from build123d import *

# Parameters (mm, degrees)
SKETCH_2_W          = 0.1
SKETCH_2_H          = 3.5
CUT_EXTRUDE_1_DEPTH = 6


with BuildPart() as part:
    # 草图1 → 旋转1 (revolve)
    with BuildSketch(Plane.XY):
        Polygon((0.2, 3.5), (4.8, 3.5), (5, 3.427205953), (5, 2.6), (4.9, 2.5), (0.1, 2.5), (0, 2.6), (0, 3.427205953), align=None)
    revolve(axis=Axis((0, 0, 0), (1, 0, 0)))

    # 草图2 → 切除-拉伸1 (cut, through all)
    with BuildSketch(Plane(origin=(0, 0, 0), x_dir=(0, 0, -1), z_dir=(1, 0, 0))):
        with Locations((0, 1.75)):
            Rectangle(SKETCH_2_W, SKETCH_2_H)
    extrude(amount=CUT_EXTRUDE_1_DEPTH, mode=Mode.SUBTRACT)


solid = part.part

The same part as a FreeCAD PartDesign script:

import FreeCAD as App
import Part
import Sketcher
from FreeCAD import Vector
Q = App.Units.Quantity

doc = App.newDocument("Part")
params = doc.addObject("Spreadsheet::Sheet", "Params")
for row, (alias, value) in enumerate([
    ("sketch1_width", "4.6 mm"),
    ("sketch1_width2", "4.8 mm"),
    ("revolution_angle", "360 deg"),
    ("sketch2_width", "3.5 mm"),
    ("sketch2_height", "0.1 mm"),
], start=1):
    params.set(f"A{row}", alias)
    params.set(f"B{row}", "=" + value)
    params.setAlias(f"B{row}", alias)

body = doc.addObject("PartDesign::Body", "Body")

sketch1 = body.newObject("Sketcher::SketchObject", "Sketch")
sketch1.AttachmentSupport = (doc.getObject("XY_Plane"), [""])
sketch1.MapMode = "FlatFace"
sketch1.addGeometry(Part.LineSegment(Vector(4.8, 3.5, 0), Vector(0.2, 3.5, 0)), False)
sketch1.addGeometry(Part.LineSegment(Vector(0.2, 3.5, 0), Vector(0, 3.43, 0)), False)
sketch1.addGeometry(Part.LineSegment(Vector(0, 3.43, 0), Vector(0, 2.6, 0)), False)
sketch1.addGeometry(Part.LineSegment(Vector(0, 2.6, 0), Vector(0.1, 2.5, 0)), False)
sketch1.addGeometry(Part.LineSegment(Vector(0.1, 2.5, 0), Vector(4.9, 2.5, 0)), False)
sketch1.addGeometry(Part.LineSegment(Vector(4.9, 2.5, 0), Vector(5, 2.6, 0)), False)
sketch1.addGeometry(Part.LineSegment(Vector(5, 2.6, 0), Vector(5, 3.43, 0)), False)
sketch1.addGeometry(Part.LineSegment(Vector(5, 3.43, 0), Vector(4.8, 3.5, 0)), False)
sketch1.addConstraint(Sketcher.Constraint("Coincident", 0, 2, 1, 1))
sketch1.addConstraint(Sketcher.Constraint("Coincident", 1, 2, 2, 1))
sketch1.addConstraint(Sketcher.Constraint("Coincident", 2, 2, 3, 1))
sketch1.addConstraint(Sketcher.Constraint("Coincident", 3, 2, 4, 1))
sketch1.addConstraint(Sketcher.Constraint("Coincident", 4, 2, 5, 1))
sketch1.addConstraint(Sketcher.Constraint("Coincident", 5, 2, 6, 1))
sketch1.addConstraint(Sketcher.Constraint("Coincident", 6, 2, 7, 1))
sketch1.addConstraint(Sketcher.Constraint("Coincident", 7, 2, 0, 1))
sketch1.addConstraint(Sketcher.Constraint("Horizontal", 0))
sketch1.addConstraint(Sketcher.Constraint("Vertical", 2))
sketch1.addConstraint(Sketcher.Constraint("Horizontal", 4))
sketch1.addConstraint(Sketcher.Constraint("Vertical", 6))
sketch1.addConstraint(Sketcher.Constraint("PointOnObject", 1, 2, -2))
sketch1.addConstraint(Sketcher.Constraint("Perpendicular", 3, 5))
sketch1.addConstraint(Sketcher.Constraint("Horizontal", 2, 2, 5, 2))
sketch1.addConstraint(Sketcher.Constraint("Horizontal", 1, 2, 6, 2))
sketch1.addConstraint(Sketcher.Constraint("Equal", 3, 5))
sketch1.addConstraint(Sketcher.Constraint("Equal", 1, 7))
sketch1.addConstraint(Sketcher.Constraint("Angle", 1, Q("-160 deg")))
sketch1.addConstraint(Sketcher.Constraint("DistanceX", 0, 2, 0, 1, 4.6))
sketch1.addConstraint(Sketcher.Constraint("DistanceX", 4, 1, 4, 2, 4.8))
sketch1.addConstraint(Sketcher.Constraint("DistanceX", -1, 1, 5, 2, 5.0))
sketch1.addConstraint(Sketcher.Constraint("DistanceY", 3, 2, 0, 2, 1.0))
sketch1.addConstraint(Sketcher.Constraint("DistanceY", -1, 1, 0, 2, 3.5))
sketch1.setExpression("Constraints[19]", "Params.sketch1_width")
sketch1.setExpression("Constraints[20]", "Params.sketch1_width2")
revolution = body.newObject("PartDesign::Revolution", "Revolution")
revolution.Profile = sketch1
revolution.ReferenceAxis = (sketch1, ["H_Axis"])
revolution.setExpression("Angle", "Params.revolution_angle")

sketch2 = body.newObject("Sketcher::SketchObject", "Sketch001")
sketch2.AttachmentSupport = (doc.getObject("YZ_Plane"), [""])
sketch2.MapMode = "FlatFace"
sketch2.addGeometry(Part.LineSegment(Vector(3.5, 0.05, 0), Vector(0, 0.05, 0)), False)
sketch2.addGeometry(Part.LineSegment(Vector(0, 0.05, 0), Vector(0, -0.05, 0)), False)
sketch2.addGeometry(Part.LineSegment(Vector(0, -0.05, 0), Vector(3.5, -0.05, 0)), False)
sketch2.addGeometry(Part.LineSegment(Vector(3.5, -0.05, 0), Vector(3.5, 0.05, 0)), False)
sketch2.addConstraint(Sketcher.Constraint("Coincident", 0, 2, 1, 1))
sketch2.addConstraint(Sketcher.Constraint("Coincident", 1, 2, 2, 1))
sketch2.addConstraint(Sketcher.Constraint("Coincident", 2, 2, 3, 1))
sketch2.addConstraint(Sketcher.Constraint("Coincident", 3, 2, 0, 1))
sketch2.addConstraint(Sketcher.Constraint("Horizontal", 0))
sketch2.addConstraint(Sketcher.Constraint("Vertical", 1))
sketch2.addConstraint(Sketcher.Constraint("Horizontal", 2))
sketch2.addConstraint(Sketcher.Constraint("Vertical", 3))
sketch2.addConstraint(Sketcher.Constraint("Symmetric", 0, 2, 1, 2, -1, 1))
sketch2.addConstraint(Sketcher.Constraint("DistanceX", 0, 2, 0, 1, 3.5))
sketch2.addConstraint(Sketcher.Constraint("DistanceY", 1, 2, 1, 1, 0.1))
sketch2.setExpression("Constraints[9]", "Params.sketch2_width")
sketch2.setExpression("Constraints[10]", "Params.sketch2_height")
pocket1 = body.newObject("PartDesign::Pocket", "Pocket")
pocket1.Profile = sketch2
pocket1.Type = "ThroughAll"
pocket1.Reversed = True

doc.recompute()
